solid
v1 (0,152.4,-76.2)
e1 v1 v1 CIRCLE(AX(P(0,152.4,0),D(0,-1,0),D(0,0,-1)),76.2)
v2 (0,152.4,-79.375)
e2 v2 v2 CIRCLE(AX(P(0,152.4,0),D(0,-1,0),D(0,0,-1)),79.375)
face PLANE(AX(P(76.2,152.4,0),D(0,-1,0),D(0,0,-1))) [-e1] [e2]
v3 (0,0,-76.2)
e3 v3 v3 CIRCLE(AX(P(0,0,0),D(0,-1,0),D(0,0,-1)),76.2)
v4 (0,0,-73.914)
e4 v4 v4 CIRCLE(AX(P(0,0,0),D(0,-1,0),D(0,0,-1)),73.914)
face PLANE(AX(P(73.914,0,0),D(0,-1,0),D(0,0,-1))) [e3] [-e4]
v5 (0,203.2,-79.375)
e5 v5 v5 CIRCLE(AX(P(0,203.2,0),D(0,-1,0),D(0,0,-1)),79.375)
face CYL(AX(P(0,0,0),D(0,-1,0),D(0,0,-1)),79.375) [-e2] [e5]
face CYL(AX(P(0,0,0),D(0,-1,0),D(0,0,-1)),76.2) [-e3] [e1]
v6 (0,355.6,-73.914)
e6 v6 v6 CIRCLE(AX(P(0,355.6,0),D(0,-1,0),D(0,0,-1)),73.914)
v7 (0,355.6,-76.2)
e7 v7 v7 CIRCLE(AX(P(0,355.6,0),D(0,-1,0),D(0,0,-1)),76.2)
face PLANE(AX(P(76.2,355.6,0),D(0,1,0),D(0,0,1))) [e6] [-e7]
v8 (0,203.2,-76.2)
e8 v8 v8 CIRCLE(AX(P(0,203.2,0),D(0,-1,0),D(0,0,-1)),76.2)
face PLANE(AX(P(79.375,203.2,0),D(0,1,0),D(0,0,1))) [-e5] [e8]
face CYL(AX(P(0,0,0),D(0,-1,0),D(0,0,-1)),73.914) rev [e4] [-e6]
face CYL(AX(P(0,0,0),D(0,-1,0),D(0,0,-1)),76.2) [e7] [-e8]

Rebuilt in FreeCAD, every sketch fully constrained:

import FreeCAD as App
import Part
import Sketcher

V = App.Vector
Q = App.Units.Quantity

doc = App.newDocument("Part")
body = doc.addObject("PartDesign::Body", "Body")

sketch1 = doc.addObject("Sketcher::SketchObject", "Sketch")
body.addObject(sketch1)
sketch1.AttachmentSupport = (doc.XY_Plane, [""])
sketch1.MapMode = "FlatFace"
sketch1.addGeometry([
    Part.LineSegment(V(73.914, 355.6, 0), V(73.914, 0, 0)),
    Part.LineSegment(V(73.914, 0, 0), V(76.2, 0, 0)),
    Part.LineSegment(V(76.2, 0, 0), V(76.2, 152.4, 0)),
    Part.LineSegment(V(76.2, 152.4, 0), V(79.375, 152.4, 0)),
    Part.LineSegment(V(79.375, 152.4, 0), V(79.375, 203.2, 0)),
    Part.LineSegment(V(79.375, 203.2, 0), V(76.2, 203.2, 0)),
    Part.LineSegment(V(76.2, 203.2, 0), V(76.2, 355.6, 0)),
    Part.LineSegment(V(76.2, 355.6, 0), V(73.914, 355.6, 0)),
], False)
sketch1.addConstraint([
    Sketcher.Constraint("Coincident", 0, 2, 1, 1),
    Sketcher.Constraint("Coincident", 1, 2, 2, 1),
    Sketcher.Constraint("Coincident", 2, 2, 3, 1),
    Sketcher.Constraint("Coincident", 3, 2, 4, 1),
    Sketcher.Constraint("Coincident", 4, 2, 5, 1),
    Sketcher.Constraint("Coincident", 5, 2, 6, 1),
    Sketcher.Constraint("Coincident", 6, 2, 7, 1),
    Sketcher.Constraint("Coincident", 7, 2, 0, 1),
    Sketcher.Constraint("Vertical", 0),
    Sketcher.Constraint("Horizontal", 1),
    Sketcher.Constraint("Vertical", 2),
    Sketcher.Constraint("Horizontal", 3),
    Sketcher.Constraint("Vertical", 4),
    Sketcher.Constraint("Horizontal", 5),
    Sketcher.Constraint("Vertical", 6),
    Sketcher.Constraint("Horizontal", 7),
    Sketcher.Constraint("PointOnObject", 0, 2, -1),
    Sketcher.Constraint("Vertical", 2, 2, 5, 2),
    Sketcher.Constraint("Equal", 2, 6),
    Sketcher.Constraint("DistanceY", 0, 2, 0, 1, Q("14 in")),
    Sketcher.Constraint("DistanceY", 2, 1, 2, 2, Q("6 in")),
    Sketcher.Constraint("DistanceX", -1, 1, 1, 2, Q("3 in")),
    Sketcher.Constraint("DistanceX", 1, 1, 1, 2, Q("0.09 in")),
    Sketcher.Constraint("DistanceX", 3, 1, 3, 2, Q("0.125 in")),
])
revolution = doc.addObject("PartDesign::Revolution", "Revolution")
body.addObject(revolution)
revolution.Profile = sketch1
revolution.ReferenceAxis = (sketch1, ["V_Axis"])
revolution.Angle = 360

doc.recompute()
